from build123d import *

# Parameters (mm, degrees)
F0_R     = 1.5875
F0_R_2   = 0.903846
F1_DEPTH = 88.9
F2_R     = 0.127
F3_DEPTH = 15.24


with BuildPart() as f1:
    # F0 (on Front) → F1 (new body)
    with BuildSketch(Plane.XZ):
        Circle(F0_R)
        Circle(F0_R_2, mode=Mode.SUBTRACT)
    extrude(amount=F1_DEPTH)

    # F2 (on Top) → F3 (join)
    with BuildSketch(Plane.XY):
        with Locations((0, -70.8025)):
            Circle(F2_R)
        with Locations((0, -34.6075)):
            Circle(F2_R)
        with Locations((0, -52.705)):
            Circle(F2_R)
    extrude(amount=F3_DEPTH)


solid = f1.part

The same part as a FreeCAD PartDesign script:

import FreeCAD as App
import Part
import Sketcher

V = App.Vector
Q = App.Units.Quantity

doc = App.newDocument("Part")
body = doc.addObject("PartDesign::Body", "Body")

# Sketch on XZ plane
sketch1 = doc.addObject("Sketcher::SketchObject", "Sketch")
body.addObject(sketch1)
sketch1.AttachmentSupport = (doc.XZ_Plane, [""])
sketch1.MapMode = "FlatFace"
sketch1.addGeometry([
    Part.Circle(V(0, 0, 0), V(0, 0, 1), 1.5875),
    Part.Circle(V(0, 0, 0), V(0, 0, 1), 0.903846),
], False)
sketch1.addConstraint([
    Sketcher.Constraint("Coincident", 0, 3, -1, 1),
    Sketcher.Constraint("Coincident", 1, 3, -1, 1),
    Sketcher.Constraint("Diameter", 0, Q("0.125 in")),
    Sketcher.Constraint("Diameter", 1, 1.807692),
])
pad1 = doc.addObject("PartDesign::Pad", "Pad")
body.addObject(pad1)
pad1.Profile = sketch1
pad1.Length = Q("3.5 in")

# Sketch on XY plane
sketch2 = doc.addObject("Sketcher::SketchObject", "Sketch001")
body.addObject(sketch2)
sketch2.AttachmentSupport = (doc.XY_Plane, [""])
sketch2.MapMode = "FlatFace"
sketch2.addGeometry([
    Part.Circle(V(0, -70.8025, 0), V(0, 0, 1), 0.127),
    Part.Circle(V(0, -34.6075, 0), V(0, 0, 1), 0.127),
    Part.Circle(V(0, -52.705, 0), V(0, 0, 1), 0.127),
], False)
sketch2.addConstraint([
    Sketcher.Constraint("Equal", 0, 1),
    Sketcher.Constraint("Equal", 1, 2),
    Sketcher.Constraint("PointOnObject", 0, 3, -2),
    Sketcher.Constraint("PointOnObject", 1, 3, -2),
    Sketcher.Constraint("PointOnObject", 2, 3, -2),
    Sketcher.Constraint("Diameter", 0, Q("0.01 in")),
    Sketcher.Constraint("DistanceY", 2, 3, -1, 1, Q("2.075 in")),
    Sketcher.Constraint("DistanceY", 0, 3, 1, 3, Q("1.425 in")),
    Sketcher.Constraint("DistanceY", 0, 3, -1, 1, Q("2.7875 in")),
])
pad2 = doc.addObject("PartDesign::Pad", "Pad001")
body.addObject(pad2)
pad2.Profile = sketch2
pad2.Length = Q("0.6 in")

doc.recompute()
